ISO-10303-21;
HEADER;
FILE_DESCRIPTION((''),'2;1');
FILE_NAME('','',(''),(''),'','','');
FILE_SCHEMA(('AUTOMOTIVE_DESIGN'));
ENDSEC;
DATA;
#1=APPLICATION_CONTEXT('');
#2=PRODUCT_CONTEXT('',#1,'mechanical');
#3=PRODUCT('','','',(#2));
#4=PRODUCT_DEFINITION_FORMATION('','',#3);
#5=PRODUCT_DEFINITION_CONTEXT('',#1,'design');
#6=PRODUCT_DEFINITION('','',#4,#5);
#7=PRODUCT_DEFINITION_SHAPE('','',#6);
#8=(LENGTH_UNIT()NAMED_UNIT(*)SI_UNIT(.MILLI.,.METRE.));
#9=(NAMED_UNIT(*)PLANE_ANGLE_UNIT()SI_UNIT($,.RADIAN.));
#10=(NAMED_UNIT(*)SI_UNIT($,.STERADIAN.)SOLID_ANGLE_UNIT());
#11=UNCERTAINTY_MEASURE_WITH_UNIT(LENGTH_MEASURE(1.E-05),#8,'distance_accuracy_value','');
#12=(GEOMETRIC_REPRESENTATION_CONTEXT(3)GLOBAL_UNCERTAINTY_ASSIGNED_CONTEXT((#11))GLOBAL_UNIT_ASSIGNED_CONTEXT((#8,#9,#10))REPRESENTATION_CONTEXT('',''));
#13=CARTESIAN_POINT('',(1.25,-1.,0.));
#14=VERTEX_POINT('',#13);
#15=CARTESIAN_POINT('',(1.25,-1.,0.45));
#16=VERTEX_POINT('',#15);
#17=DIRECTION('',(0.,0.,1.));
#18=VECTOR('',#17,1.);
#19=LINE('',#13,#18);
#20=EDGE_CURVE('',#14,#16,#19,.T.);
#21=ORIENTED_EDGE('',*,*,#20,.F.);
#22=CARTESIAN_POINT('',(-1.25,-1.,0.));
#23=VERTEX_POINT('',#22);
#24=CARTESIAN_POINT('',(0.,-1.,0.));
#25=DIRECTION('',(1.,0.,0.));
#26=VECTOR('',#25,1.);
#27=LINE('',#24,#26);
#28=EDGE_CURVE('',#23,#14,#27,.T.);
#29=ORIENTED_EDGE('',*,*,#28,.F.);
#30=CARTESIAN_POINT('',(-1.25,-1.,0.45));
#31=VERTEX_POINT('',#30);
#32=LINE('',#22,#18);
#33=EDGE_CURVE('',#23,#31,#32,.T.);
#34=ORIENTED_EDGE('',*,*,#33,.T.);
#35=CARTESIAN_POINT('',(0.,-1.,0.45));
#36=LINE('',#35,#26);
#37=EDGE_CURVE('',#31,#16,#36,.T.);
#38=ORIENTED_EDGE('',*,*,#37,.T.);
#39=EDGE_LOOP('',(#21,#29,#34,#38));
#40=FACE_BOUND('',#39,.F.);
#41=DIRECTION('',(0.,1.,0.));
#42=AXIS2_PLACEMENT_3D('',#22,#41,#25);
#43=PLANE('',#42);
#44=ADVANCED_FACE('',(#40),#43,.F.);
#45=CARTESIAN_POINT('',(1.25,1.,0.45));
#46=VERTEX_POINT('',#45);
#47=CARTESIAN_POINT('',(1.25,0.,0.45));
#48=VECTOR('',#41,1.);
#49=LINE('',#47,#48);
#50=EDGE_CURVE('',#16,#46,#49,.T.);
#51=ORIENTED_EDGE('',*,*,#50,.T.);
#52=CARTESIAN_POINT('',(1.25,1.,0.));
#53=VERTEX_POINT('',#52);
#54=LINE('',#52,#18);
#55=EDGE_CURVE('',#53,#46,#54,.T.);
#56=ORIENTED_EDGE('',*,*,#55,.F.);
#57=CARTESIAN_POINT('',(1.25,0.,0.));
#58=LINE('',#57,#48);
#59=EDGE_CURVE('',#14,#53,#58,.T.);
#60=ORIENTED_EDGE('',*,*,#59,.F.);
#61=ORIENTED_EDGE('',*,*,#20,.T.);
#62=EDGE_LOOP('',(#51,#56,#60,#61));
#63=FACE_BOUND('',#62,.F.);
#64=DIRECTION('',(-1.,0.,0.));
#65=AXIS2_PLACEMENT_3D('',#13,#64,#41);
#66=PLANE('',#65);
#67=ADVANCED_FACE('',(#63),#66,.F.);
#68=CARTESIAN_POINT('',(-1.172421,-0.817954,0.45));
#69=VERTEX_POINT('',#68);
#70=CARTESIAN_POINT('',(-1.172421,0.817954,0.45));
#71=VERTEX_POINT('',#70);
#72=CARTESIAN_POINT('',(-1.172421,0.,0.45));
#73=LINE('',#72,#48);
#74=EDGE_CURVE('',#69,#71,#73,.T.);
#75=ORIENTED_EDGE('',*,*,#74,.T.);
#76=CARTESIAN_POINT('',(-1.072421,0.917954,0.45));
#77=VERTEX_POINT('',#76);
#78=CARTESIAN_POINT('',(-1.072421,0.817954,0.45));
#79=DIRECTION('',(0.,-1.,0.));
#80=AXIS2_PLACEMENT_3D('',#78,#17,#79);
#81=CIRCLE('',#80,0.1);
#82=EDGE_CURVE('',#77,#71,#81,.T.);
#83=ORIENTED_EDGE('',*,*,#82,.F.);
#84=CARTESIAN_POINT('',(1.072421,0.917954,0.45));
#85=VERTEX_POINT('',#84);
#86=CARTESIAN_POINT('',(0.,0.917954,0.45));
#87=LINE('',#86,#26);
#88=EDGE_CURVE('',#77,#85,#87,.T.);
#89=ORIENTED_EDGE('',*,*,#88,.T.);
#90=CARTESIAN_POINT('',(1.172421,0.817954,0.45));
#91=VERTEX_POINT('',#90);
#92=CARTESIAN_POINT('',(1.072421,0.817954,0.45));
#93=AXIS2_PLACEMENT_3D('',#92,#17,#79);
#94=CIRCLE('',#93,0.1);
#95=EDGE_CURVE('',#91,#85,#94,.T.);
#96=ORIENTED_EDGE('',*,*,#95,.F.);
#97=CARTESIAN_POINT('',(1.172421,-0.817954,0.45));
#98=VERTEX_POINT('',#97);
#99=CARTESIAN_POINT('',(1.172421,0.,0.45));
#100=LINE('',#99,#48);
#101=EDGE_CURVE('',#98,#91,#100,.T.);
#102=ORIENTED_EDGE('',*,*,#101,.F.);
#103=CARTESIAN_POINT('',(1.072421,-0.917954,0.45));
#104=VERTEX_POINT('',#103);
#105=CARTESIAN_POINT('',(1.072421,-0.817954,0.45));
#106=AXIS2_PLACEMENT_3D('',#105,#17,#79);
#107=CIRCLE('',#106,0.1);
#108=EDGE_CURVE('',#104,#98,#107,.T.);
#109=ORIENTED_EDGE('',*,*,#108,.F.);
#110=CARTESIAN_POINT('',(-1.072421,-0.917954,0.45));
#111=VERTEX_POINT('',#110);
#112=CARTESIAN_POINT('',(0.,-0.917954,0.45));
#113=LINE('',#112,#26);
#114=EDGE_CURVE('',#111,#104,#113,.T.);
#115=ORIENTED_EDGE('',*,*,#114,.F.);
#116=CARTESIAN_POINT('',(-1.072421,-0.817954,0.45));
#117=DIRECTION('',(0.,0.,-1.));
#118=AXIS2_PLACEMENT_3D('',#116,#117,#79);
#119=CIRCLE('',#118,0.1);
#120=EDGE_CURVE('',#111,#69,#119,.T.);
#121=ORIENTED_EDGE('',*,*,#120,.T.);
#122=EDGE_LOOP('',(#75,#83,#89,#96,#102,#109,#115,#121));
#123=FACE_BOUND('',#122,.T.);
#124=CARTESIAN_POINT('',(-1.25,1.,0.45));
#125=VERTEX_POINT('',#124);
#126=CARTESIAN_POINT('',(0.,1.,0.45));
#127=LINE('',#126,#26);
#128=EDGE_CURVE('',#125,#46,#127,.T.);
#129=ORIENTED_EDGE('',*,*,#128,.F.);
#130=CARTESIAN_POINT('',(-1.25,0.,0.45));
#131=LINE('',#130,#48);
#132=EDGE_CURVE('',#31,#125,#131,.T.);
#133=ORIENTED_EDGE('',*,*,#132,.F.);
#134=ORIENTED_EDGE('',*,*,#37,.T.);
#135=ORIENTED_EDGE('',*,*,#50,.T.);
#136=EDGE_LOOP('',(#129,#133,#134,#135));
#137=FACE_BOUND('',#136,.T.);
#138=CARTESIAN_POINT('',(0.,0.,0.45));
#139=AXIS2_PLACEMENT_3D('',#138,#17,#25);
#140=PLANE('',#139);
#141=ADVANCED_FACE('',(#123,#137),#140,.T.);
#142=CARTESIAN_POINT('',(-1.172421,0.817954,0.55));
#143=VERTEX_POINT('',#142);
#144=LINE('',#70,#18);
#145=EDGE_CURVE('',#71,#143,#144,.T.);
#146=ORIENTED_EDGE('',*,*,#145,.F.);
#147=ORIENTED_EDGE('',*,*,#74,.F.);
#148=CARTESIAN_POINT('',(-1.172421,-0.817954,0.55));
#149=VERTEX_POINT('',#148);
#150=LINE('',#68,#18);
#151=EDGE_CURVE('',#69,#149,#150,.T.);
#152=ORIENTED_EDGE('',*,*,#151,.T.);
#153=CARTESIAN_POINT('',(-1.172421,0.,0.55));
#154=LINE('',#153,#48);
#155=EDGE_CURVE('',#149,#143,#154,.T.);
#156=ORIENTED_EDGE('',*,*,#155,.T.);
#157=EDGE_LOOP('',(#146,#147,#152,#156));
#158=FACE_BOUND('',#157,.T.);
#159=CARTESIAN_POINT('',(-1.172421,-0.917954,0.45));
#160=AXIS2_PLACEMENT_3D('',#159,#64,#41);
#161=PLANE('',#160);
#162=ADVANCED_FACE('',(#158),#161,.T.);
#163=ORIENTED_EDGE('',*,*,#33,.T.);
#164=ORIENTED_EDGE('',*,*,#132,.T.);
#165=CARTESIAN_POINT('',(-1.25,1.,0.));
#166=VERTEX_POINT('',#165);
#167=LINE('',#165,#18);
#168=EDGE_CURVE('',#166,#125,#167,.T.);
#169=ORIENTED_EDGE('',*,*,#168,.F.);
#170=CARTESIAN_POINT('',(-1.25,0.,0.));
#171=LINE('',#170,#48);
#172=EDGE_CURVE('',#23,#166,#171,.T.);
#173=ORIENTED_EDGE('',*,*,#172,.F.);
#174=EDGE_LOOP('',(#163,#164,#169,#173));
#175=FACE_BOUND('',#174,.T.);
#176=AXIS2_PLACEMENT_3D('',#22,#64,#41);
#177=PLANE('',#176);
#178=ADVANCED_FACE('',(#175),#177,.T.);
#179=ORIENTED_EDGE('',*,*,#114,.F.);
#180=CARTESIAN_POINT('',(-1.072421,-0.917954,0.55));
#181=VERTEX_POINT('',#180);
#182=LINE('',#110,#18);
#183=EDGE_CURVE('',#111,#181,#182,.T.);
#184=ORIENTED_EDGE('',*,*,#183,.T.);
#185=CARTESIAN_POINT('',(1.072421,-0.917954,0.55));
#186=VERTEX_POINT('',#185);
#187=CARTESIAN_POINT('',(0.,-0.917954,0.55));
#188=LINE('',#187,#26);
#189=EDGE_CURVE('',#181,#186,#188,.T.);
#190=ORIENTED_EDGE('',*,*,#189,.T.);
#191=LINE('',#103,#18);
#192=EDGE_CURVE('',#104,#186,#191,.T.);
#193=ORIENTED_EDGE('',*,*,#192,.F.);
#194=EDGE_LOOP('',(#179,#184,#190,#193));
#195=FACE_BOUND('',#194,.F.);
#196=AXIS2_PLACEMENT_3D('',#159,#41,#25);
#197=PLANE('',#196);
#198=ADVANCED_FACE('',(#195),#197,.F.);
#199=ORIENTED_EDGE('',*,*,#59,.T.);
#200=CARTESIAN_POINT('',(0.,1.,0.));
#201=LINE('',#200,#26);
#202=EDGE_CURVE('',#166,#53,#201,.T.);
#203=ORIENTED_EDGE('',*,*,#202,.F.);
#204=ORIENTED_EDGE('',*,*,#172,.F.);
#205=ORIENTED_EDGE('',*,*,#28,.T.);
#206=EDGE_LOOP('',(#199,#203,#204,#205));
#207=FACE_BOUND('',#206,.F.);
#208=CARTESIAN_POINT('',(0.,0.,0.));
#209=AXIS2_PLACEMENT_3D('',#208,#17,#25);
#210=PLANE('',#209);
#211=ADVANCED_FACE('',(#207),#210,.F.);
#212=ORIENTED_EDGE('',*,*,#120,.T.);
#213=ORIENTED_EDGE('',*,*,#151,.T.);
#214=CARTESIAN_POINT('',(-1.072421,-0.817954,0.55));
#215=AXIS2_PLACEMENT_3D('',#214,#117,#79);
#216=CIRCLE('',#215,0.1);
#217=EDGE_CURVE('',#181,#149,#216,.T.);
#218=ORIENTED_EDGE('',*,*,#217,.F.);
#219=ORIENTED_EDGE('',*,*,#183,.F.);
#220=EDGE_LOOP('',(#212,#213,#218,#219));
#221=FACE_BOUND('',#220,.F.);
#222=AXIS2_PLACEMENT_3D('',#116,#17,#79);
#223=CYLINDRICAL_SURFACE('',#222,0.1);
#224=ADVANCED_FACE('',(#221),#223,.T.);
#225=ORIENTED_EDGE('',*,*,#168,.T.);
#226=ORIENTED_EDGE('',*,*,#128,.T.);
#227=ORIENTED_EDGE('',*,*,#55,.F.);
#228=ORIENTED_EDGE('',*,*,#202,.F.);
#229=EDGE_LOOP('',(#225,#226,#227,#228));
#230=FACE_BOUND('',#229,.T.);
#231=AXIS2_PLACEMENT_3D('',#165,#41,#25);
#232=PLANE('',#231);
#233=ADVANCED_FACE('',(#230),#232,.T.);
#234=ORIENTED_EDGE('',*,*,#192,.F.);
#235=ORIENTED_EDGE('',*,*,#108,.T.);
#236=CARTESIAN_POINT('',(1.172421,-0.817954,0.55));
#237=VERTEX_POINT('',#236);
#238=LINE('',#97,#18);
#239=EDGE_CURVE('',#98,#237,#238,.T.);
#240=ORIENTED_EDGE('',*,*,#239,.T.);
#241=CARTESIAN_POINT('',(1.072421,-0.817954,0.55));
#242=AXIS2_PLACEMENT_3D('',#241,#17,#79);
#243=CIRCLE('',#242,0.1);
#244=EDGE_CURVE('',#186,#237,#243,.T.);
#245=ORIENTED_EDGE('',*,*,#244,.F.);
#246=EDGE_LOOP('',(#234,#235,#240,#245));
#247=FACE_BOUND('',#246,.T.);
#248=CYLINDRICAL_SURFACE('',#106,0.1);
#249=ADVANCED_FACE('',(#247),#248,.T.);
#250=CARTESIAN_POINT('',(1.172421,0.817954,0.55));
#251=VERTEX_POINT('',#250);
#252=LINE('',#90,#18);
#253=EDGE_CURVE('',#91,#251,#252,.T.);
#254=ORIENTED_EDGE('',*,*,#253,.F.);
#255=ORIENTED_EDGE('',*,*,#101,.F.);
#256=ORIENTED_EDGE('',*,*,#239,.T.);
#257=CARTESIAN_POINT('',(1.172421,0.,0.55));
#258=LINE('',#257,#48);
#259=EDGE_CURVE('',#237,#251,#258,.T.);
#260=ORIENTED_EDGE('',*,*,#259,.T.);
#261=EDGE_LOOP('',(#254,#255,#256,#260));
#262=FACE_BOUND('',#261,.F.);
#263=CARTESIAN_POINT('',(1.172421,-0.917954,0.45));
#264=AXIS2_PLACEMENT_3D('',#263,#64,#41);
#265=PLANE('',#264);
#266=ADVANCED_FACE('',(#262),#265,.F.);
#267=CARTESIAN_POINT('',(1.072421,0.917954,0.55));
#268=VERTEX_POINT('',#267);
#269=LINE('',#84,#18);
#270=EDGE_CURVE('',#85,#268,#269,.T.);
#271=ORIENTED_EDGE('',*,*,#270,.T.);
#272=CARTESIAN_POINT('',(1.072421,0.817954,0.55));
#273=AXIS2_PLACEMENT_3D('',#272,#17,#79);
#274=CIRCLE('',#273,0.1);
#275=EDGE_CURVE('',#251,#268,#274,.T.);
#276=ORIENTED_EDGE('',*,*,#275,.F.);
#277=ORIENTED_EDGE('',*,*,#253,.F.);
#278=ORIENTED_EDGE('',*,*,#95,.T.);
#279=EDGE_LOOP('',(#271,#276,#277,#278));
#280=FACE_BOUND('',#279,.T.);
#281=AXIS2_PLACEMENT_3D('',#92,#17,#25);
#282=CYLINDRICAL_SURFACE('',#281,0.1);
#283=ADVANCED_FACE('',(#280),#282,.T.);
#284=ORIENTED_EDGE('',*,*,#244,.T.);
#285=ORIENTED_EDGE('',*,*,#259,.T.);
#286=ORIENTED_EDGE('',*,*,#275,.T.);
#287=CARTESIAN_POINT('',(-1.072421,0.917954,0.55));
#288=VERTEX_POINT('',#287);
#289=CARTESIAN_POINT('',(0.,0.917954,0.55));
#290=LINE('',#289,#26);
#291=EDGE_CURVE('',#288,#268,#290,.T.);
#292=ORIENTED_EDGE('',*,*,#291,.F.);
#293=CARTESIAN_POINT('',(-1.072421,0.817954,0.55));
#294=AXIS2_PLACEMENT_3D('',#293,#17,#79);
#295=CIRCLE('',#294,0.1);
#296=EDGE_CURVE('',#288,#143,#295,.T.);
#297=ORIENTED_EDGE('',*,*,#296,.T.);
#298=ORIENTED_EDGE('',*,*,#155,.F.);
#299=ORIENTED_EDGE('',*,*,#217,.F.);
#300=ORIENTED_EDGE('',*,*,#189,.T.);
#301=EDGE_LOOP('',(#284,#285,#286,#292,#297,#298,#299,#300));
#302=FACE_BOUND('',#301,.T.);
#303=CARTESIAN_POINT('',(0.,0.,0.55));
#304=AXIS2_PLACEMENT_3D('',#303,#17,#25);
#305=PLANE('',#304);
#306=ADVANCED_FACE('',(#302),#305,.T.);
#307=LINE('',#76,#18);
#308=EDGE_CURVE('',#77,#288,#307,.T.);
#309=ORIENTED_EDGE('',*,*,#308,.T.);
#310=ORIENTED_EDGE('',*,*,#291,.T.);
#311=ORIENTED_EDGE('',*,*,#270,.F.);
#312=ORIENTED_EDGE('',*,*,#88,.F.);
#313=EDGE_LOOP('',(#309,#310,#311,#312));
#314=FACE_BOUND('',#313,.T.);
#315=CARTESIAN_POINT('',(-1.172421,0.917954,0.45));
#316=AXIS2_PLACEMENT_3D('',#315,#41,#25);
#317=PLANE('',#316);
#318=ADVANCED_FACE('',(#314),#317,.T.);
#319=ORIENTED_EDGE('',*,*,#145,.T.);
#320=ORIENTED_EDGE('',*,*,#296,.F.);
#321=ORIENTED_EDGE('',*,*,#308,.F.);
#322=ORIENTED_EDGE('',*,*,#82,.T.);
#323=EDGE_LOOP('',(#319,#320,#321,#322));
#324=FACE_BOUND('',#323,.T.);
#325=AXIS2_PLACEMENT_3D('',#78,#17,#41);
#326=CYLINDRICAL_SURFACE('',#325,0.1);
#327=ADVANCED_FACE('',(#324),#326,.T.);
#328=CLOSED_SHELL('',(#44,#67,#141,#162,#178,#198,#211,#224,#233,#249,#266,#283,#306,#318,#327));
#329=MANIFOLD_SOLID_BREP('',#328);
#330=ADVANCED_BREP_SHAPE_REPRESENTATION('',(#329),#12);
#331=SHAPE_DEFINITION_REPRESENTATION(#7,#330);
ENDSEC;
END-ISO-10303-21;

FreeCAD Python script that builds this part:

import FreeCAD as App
import Part
import Sketcher


def edges_at(feature, points):
    """Names of the edges that pass closest to the given points."""
    edges = feature.Shape.Edges
    near = lambda p: min(range(len(edges)), key=lambda i: edges[i].distToShape(Part.Vertex(*p))[0])
    return sorted({f"Edge{near(p) + 1}" for p in points})

doc = App.newDocument("Part")
body = doc.addObject("PartDesign::Body", "Body")

sketch1 = body.newObject("Sketcher::SketchObject", "Sketch")
sketch1.AttachmentSupport = (doc.getObject("XY_Plane"), [""])
sketch1.MapMode = "FlatFace"
sketch1.addGeometry(Part.LineSegment(App.Vector(-1.2, 1, 0), App.Vector(-1.2, -1, 0)), False)
sketch1.addGeometry(Part.LineSegment(App.Vector(-1.2, -1, 0), App.Vector(1.2, -1, 0)), False)
sketch1.addGeometry(Part.LineSegment(App.Vector(1.2, -1, 0), App.Vector(1.2, 1, 0)), False)
sketch1.addGeometry(Part.LineSegment(App.Vector(1.2, 1, 0), App.Vector(-1.2, 1, 0)), False)
sketch1.addConstraint(Sketcher.Constraint("Coincident", 0, 2, 1, 1))
sketch1.addConstraint(Sketcher.Constraint("Coincident", 1, 2, 2, 1))
sketch1.addConstraint(Sketcher.Constraint("Coincident", 2, 2, 3, 1))
sketch1.addConstraint(Sketcher.Constraint("Coincident", 3, 2, 0, 1))
sketch1.addConstraint(Sketcher.Constraint("Vertical", 0))
sketch1.addConstraint(Sketcher.Constraint("Horizontal", 1))
sketch1.addConstraint(Sketcher.Constraint("Vertical", 2))
sketch1.addConstraint(Sketcher.Constraint("Horizontal", 3))
sketch1.addConstraint(Sketcher.Constraint("Symmetric", 0, 2, 2, 2, -1, 1))
sketch1.addConstraint(Sketcher.Constraint("DistanceY", 0, 2, 0, 1, 2.0))
sketch1.addConstraint(Sketcher.Constraint("DistanceX", 1, 1, 1, 2, 2.5))
pad1 = body.newObject("PartDesign::Pad", "Pad")
pad1.Profile = sketch1
pad1.Length = 0.45

sketch2 = body.newObject("Sketcher::SketchObject", "Sketch001")
sketch2.AttachmentSupport = (doc.getObject("XY_Plane"), [""])
sketch2.MapMode = "FlatFace"
sketch2.AttachmentOffset = App.Placement(App.Vector(0, 0, 0.45), App.Rotation())
sketch2.addGeometry(Part.LineSegment(App.Vector(-1.2, 0.9, 0), App.Vector(-1.2, -0.9, 0)), False)
sketch2.addGeometry(Part.LineSegment(App.Vector(-1.2, -0.9, 0), App.Vector(1.2, -0.9, 0)), False)
sketch2.addGeometry(Part.LineSegment(App.Vector(1.2, -0.9, 0), App.Vector(1.2, 0.9, 0)), False)
sketch2.addGeometry(Part.LineSegment(App.Vector(1.2, 0.9, 0), App.Vector(-1.2, 0.9, 0)), False)
sketch2.addConstraint(Sketcher.Constraint("Coincident", 0, 2, 1, 1))
sketch2.addConstraint(Sketcher.Constraint("Coincident", 1, 2, 2, 1))
sketch2.addConstraint(Sketcher.Constraint("Coincident", 2, 2, 3, 1))
sketch2.addConstraint(Sketcher.Constraint("Coincident", 3, 2, 0, 1))
sketch2.addConstraint(Sketcher.Constraint("Vertical", 0))
sketch2.addConstraint(Sketcher.Constraint("Horizontal", 1))
sketch2.addConstraint(Sketcher.Constraint("Vertical", 2))
sketch2.addConstraint(Sketcher.Constraint("Horizontal", 3))
sketch2.addConstraint(Sketcher.Constraint("Symmetric", 0, 2, 2, 2, -1, 1))
sketch2.addConstraint(Sketcher.Constraint("DistanceX", 1, 1, 1, 2, 2.344842))
sketch2.addConstraint(Sketcher.Constraint("DistanceY", 0, 2, 0, 1, 1.835908))
pad2 = body.newObject("PartDesign::Pad", "Pad001")
pad2.Profile = sketch2
pad2.Length = 0.1
doc.recompute()

fillet = body.newObject("PartDesign::Fillet", "Fillet")
fillet.Base = (pad2, edges_at(pad2, [
    (1.172, -0.918, 0.5),
    (-1.172, -0.918, 0.5),
    (1.172, 0.918, 0.5),
    (-1.172, 0.918, 0.5),
]))
fillet.Radius = 0.1

doc.recompute()
